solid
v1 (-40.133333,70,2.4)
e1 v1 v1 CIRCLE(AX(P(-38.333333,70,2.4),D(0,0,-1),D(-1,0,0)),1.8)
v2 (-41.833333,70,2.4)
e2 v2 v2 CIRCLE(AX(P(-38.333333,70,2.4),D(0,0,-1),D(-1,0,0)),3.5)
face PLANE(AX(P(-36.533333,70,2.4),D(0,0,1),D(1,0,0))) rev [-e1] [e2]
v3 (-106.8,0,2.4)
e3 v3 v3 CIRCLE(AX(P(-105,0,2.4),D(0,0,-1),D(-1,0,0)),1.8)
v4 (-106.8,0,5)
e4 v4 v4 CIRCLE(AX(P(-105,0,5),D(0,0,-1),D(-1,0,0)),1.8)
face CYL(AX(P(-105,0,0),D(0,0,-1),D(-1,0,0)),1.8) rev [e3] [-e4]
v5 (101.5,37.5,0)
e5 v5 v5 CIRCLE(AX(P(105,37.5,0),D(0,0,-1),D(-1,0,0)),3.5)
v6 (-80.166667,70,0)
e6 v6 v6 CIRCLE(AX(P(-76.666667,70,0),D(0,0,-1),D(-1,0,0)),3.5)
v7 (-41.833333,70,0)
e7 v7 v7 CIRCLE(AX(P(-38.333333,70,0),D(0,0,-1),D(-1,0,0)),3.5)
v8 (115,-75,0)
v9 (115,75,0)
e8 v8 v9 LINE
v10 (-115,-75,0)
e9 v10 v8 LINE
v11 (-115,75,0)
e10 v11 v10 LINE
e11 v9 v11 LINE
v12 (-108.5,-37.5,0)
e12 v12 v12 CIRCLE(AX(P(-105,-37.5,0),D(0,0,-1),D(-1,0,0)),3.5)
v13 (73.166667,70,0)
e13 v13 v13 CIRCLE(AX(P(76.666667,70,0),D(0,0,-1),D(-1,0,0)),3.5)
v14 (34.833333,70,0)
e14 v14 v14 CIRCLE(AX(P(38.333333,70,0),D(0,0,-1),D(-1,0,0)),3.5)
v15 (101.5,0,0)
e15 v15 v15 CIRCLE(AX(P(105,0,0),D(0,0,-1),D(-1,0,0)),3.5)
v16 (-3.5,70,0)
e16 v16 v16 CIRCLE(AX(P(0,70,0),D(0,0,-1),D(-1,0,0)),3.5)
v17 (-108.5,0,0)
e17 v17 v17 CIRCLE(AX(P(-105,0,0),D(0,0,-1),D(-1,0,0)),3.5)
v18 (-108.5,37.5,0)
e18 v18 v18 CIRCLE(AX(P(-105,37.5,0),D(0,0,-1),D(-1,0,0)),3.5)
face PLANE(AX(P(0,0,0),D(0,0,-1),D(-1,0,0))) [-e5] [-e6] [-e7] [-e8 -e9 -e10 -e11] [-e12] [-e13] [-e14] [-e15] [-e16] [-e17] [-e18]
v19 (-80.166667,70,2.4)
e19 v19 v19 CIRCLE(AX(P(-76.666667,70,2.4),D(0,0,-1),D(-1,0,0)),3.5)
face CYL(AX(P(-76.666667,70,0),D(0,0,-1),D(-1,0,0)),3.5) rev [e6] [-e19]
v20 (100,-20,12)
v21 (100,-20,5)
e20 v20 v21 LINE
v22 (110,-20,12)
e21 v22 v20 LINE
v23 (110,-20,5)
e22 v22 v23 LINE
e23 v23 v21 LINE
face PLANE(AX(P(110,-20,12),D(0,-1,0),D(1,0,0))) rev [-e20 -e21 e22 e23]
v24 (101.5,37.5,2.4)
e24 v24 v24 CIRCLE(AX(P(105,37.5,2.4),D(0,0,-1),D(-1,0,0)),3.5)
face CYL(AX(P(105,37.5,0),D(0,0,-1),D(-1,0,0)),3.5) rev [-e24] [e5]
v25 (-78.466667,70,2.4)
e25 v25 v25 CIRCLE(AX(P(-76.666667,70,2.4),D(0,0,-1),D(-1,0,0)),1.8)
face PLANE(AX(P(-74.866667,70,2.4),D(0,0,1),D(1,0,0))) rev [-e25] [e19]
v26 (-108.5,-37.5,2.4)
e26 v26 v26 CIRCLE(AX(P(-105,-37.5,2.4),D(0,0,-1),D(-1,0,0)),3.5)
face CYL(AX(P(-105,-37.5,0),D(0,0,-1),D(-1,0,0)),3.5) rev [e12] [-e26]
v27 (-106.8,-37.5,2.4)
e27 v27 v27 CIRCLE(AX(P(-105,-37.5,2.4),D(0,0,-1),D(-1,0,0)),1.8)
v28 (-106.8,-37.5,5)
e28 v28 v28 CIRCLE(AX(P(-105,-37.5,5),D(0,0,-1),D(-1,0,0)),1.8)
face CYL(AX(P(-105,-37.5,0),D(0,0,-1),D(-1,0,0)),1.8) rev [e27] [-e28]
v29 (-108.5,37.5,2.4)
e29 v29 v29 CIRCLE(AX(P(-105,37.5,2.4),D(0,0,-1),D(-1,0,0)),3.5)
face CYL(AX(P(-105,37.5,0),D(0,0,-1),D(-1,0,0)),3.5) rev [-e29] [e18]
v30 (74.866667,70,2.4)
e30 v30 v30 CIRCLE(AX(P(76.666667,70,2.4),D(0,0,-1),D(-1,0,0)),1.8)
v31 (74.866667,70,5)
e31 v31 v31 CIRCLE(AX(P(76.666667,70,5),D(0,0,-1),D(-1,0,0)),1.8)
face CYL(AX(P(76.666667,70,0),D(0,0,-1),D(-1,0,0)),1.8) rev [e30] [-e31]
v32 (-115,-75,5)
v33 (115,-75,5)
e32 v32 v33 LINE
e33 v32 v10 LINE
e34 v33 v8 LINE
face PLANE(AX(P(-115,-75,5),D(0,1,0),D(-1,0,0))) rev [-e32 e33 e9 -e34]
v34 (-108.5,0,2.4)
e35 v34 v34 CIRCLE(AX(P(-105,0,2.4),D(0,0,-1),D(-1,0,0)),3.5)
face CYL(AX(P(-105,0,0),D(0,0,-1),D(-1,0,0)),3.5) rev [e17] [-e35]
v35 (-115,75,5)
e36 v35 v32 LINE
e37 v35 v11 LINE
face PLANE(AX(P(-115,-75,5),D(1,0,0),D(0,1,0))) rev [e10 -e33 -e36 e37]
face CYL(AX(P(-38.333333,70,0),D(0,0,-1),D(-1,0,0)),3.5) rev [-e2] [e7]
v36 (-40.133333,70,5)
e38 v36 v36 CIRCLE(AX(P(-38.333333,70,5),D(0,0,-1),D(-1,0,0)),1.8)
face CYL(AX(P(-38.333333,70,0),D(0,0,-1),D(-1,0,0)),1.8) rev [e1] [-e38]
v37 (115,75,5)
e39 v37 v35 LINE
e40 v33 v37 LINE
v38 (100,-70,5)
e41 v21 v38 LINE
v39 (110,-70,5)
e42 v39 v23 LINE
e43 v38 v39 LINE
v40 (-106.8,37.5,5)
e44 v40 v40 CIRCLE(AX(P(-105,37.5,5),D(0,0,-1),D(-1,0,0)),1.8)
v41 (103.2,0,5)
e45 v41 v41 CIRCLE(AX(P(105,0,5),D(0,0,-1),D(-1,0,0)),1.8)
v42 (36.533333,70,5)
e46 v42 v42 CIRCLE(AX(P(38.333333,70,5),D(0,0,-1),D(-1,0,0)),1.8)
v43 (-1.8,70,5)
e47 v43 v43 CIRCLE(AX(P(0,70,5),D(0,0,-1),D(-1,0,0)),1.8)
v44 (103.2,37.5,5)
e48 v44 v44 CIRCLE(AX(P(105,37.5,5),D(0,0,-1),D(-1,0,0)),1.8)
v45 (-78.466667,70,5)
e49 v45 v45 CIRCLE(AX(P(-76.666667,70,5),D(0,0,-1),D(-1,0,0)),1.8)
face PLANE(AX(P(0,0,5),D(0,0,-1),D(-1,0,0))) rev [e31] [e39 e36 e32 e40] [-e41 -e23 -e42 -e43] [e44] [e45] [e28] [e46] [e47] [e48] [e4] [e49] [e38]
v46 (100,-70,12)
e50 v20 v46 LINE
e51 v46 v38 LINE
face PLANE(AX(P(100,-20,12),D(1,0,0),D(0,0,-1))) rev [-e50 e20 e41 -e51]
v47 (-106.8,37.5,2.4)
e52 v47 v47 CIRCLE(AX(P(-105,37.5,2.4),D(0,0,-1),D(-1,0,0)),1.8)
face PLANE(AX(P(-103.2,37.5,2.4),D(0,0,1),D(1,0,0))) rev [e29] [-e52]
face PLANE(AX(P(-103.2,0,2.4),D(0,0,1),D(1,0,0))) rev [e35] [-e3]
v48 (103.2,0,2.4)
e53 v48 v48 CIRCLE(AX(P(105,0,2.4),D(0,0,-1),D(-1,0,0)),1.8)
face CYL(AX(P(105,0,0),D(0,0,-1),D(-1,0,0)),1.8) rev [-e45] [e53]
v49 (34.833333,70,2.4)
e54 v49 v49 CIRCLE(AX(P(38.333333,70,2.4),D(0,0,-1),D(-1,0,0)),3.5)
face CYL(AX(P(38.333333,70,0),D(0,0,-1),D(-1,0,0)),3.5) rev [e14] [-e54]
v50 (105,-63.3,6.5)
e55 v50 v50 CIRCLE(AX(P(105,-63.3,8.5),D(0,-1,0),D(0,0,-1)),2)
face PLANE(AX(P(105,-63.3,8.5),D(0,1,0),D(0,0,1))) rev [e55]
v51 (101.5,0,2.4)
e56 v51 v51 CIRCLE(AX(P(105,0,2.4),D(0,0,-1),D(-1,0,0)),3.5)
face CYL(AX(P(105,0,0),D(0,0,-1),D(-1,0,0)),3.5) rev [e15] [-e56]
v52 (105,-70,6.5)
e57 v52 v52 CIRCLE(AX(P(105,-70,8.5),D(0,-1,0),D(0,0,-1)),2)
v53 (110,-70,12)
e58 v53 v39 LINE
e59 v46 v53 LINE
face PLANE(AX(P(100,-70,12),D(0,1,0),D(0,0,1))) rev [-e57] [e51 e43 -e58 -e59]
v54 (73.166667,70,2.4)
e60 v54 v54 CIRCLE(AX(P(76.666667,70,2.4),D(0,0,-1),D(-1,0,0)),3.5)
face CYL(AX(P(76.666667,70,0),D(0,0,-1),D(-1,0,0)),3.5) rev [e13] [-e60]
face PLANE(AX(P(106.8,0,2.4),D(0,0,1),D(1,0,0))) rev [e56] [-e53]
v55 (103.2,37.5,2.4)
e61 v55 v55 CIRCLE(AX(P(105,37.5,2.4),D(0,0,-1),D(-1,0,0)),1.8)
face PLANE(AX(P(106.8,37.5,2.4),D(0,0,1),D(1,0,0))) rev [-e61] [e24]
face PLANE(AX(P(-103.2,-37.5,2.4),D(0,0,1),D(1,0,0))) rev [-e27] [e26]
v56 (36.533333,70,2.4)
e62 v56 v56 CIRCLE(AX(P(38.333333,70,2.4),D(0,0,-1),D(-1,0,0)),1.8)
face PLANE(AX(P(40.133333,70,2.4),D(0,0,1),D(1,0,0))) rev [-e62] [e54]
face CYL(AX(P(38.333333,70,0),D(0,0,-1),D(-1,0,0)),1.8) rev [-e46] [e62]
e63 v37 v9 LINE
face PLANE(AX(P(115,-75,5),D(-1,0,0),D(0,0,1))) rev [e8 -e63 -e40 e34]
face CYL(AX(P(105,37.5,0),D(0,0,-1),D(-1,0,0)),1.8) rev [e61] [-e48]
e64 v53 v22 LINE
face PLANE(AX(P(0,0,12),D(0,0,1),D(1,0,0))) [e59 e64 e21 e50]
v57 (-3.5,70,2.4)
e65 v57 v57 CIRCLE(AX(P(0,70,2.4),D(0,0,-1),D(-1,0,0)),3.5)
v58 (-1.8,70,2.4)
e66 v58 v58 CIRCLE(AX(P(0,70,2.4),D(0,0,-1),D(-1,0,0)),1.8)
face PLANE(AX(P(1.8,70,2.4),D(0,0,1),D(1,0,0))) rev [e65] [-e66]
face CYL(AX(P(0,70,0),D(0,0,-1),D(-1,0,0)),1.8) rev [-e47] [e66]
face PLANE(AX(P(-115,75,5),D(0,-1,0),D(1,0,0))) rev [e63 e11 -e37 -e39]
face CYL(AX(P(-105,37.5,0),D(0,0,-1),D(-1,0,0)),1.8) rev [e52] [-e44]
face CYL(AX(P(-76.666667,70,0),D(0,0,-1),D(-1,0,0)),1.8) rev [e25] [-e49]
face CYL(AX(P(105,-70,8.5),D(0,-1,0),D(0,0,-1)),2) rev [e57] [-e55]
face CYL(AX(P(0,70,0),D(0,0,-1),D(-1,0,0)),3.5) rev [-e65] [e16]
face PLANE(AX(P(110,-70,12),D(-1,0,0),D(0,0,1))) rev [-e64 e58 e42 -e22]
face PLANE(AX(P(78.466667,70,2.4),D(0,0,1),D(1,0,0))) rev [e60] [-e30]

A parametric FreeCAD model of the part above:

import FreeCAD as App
import Part
import Sketcher

V = App.Vector
Q = App.Units.Quantity

doc = App.newDocument("Part")
params = doc.addObject("Spreadsheet::Sheet", "Params")
for row, (alias, value) in enumerate([
    ("sketch1_width", "230 mm"),
    ("sketch1_height", "150 mm"),
    ("pad1_length", "5 mm"),
    ("sketch2_diameter", "3.6 mm"),
    ("hole_diameter", "3.6 mm"),
    ("hole_depth", "6.7 mm"),
    ("hole_cbore_diameter", "7 mm"),
    ("hole_cbore_depth", "2.4 mm"),
    ("sketch3_diameter", "3.6 mm"),
    ("hole2_diameter", "3.6 mm"),
    ("hole2_depth", "6.7 mm"),
    ("hole2_cbore_diameter", "7 mm"),
    ("hole2_cbore_depth", "2.4 mm"),
    ("sketch4_width", "10 mm"),
    ("sketch4_height", "50 mm"),
    ("pad2_length", "7 mm"),
    ("sketch5_diameter", "4 mm"),
    ("hole3_diameter", "4 mm"),
    ("hole3_depth", "6.7 mm"),
], start=1):
    params.set(f"A{row}", alias)
    params.set(f"B{row}", "=" + value)
    params.setAlias(f"B{row}", alias)

body = doc.addObject("PartDesign::Body", "Body")

# Sketch on XY plane
sketch1 = doc.addObject("Sketcher::SketchObject", "Sketch")
body.addObject(sketch1)
sketch1.AttachmentSupport = (doc.XY_Plane, [""])
sketch1.MapMode = "FlatFace"
sketch1.addGeometry(Part.LineSegment(V(-115, 75, 0), V(-115, -75, 0)), False)
sketch1.addGeometry(Part.LineSegment(V(-115, -75, 0), V(115, -75, 0)), False)
sketch1.addGeometry(Part.LineSegment(V(115, -75, 0), V(115, 75, 0)), False)
sketch1.addGeometry(Part.LineSegment(V(115, 75, 0), V(-115, 75, 0)), False)
sketch1.addConstraint(Sketcher.Constraint("Coincident", 0, 2, 1, 1))
sketch1.addConstraint(Sketcher.Constraint("Coincident", 1, 2, 2, 1))
sketch1.addConstraint(Sketcher.Constraint("Coincident", 2, 2, 3, 1))
sketch1.addConstraint(Sketcher.Constraint("Coincident", 3, 2, 0, 1))
sketch1.addConstraint(Sketcher.Constraint("Vertical", 0))
sketch1.addConstraint(Sketcher.Constraint("Horizontal", 1))
sketch1.addConstraint(Sketcher.Constraint("Vertical", 2))
sketch1.addConstraint(Sketcher.Constraint("Horizontal", 3))
sketch1.addConstraint(Sketcher.Constraint("Symmetric", 0, 2, 2, 2, -1, 1))
sketch1.addConstraint(Sketcher.Constraint("DistanceX", 1, 1, 1, 2, Q("230 mm")))
sketch1.addConstraint(Sketcher.Constraint("DistanceY", 0, 2, 0, 1, Q("150 mm")))
sketch1.setExpression("Constraints[9]", "Params.sketch1_width")
sketch1.setExpression("Constraints[10]", "Params.sketch1_height")
pad1 = doc.addObject("PartDesign::Pad", "Pad")
body.addObject(pad1)
pad1.Profile = sketch1
pad1.setExpression("Length", "Params.pad1_length")

# Sketch on XY plane
sketch2 = doc.addObject("Sketcher::SketchObject", "Sketch001")
body.addObject(sketch2)
sketch2.AttachmentSupport = (doc.XY_Plane, [""])
sketch2.MapMode = "FlatFace"
sketch2.addGeometry(Part.Circle(V(-105, 37.5, 0), V(0, 0, 1), 1.8), False)
sketch2.addGeometry(Part.Circle(V(-105, 0, 0), V(0, 0, 1), 1.8), False)
sketch2.addGeometry(Part.Circle(V(-105, -37.5, 0), V(0, 0, 1), 1.8), False)
sketch2.addGeometry(Part.Circle(V(105, 0, 0), V(0, 0, 1), 1.8), False)
sketch2.addGeometry(Part.Circle(V(105, 37.5, 0), V(0, 0, 1), 1.8), False)
sketch2.addConstraint(Sketcher.Constraint("Equal", 0, 1))
sketch2.addConstraint(Sketcher.Constraint("Equal", 1, 2))
sketch2.addConstraint(Sketcher.Constraint("Equal", 2, 3))
sketch2.addConstraint(Sketcher.Constraint("Equal", 3, 4))
sketch2.addConstraint(Sketcher.Constraint("Symmetric", 1, 3, 3, 3, -1, 1))
sketch2.addConstraint(Sketcher.Constraint("Symmetric", 2, 3, 4, 3, -1, 1))
sketch2.addConstraint(Sketcher.Constraint("Symmetric", 0, 3, 4, 3, -2))
sketch2.addConstraint(Sketcher.Constraint("PointOnObject", 1, 3, -1))
sketch2.addConstraint(Sketcher.Constraint("Vertical", 0, 3, 1, 3))
sketch2.addConstraint(Sketcher.Constraint("Diameter", 0, Q("3.6 mm")))
sketch2.addConstraint(Sketcher.Constraint("DistanceX", 0, 3, -1, 1, Q("105 mm")))
sketch2.addConstraint(Sketcher.Constraint("DistanceY", 2, 3, 0, 3, Q("75 mm")))
sketch2.setExpression("Constraints[9]", "Params.sketch2_diameter")
doc.recompute()
hole = doc.addObject("PartDesign::Hole", "Hole")
body.addObject(hole)
hole.Profile = sketch2
hole.ThreadType = "None"
hole.setExpression("Diameter", "Params.hole_diameter")
hole.DepthType = "Dimension"
hole.setExpression("Depth", "Params.hole_depth")
hole.DrillPoint = "Angled"
hole.DrillPointAngle = 118
hole.HoleCutType = "Counterbore"
hole.setExpression("HoleCutDiameter", "Params.hole_cbore_diameter")
hole.setExpression("HoleCutDepth", "Params.hole_cbore_depth")
hole.Reversed = True

# Sketch on XY plane
sketch3 = doc.addObject("Sketcher::SketchObject", "Sketch002")
body.addObject(sketch3)
sketch3.AttachmentSupport = (doc.XY_Plane, [""])
sketch3.MapMode = "FlatFace"
sketch3.addGeometry(Part.Circle(V(76.7, 70, 0), V(0, 0, 1), 1.8), False)
sketch3.addGeometry(Part.Circle(V(38.3, 70, 0), V(0, 0, 1), 1.8), False)
sketch3.addGeometry(Part.Circle(V(0, 70, 0), V(0, 0, 1), 1.8), False)
sketch3.addGeometry(Part.Circle(V(-38.3, 70, 0), V(0, 0, 1), 1.8), False)
sketch3.addGeometry(Part.Circle(V(-76.7, 70, 0), V(0, 0, 1), 1.8), False)
sketch3.addConstraint(Sketcher.Constraint("Equal", 0, 1))
sketch3.addConstraint(Sketcher.Constraint("Equal", 1, 2))
sketch3.addConstraint(Sketcher.Constraint("Equal", 2, 3))
sketch3.addConstraint(Sketcher.Constraint("Equal", 3, 4))
sketch3.addConstraint(Sketcher.Constraint("Symmetric", 1, 3, 3, 3, -2))
sketch3.addConstraint(Sketcher.Constraint("Symmetric", 0, 3, 4, 3, -2))
sketch3.addConstraint(Sketcher.Constraint("PointOnObject", 2, 3, -2))
sketch3.addConstraint(Sketcher.Constraint("Horizontal", 0, 3, 1, 3))
sketch3.addConstraint(Sketcher.Constraint("Horizontal", 1, 3, 2, 3))
sketch3.addConstraint(Sketcher.Constraint("Diameter", 0, Q("3.6 mm")))
sketch3.addConstraint(Sketcher.Constraint("DistanceY", -1, 1, 0, 3, Q("70 mm")))
sketch3.addConstraint(Sketcher.Constraint("DistanceX", 3, 3, 0, 3, Q("115 mm")))
sketch3.addConstraint(Sketcher.Constraint("DistanceX", -1, 1, 0, 3, Q("76.666667 mm")))
sketch3.setExpression("Constraints[9]", "Params.sketch3_diameter")
doc.recompute()
hole2 = doc.addObject("PartDesign::Hole", "Hole001")
body.addObject(hole2)
hole2.Profile = sketch3
hole2.ThreadType = "None"
hole2.setExpression("Diameter", "Params.hole2_diameter")
hole2.DepthType = "Dimension"
hole2.setExpression("Depth", "Params.hole2_depth")
hole2.DrillPoint = "Angled"
hole2.DrillPointAngle = 118
hole2.HoleCutType = "Counterbore"
hole2.setExpression("HoleCutDiameter", "Params.hole2_cbore_diameter")
hole2.setExpression("HoleCutDepth", "Params.hole2_cbore_depth")
hole2.Reversed = True

# Sketch on XY plane
sketch4 = doc.addObject("Sketcher::SketchObject", "Sketch003")
body.addObject(sketch4)
sketch4.AttachmentSupport = (doc.XY_Plane, [""])
sketch4.MapMode = "FlatFace"
sketch4.AttachmentOffset = App.Placement(V(0, 0, 5), App.Rotation())
sketch4.addGeometry(Part.LineSegment(V(100, -20, 0), V(100, -70, 0)), False)
sketch4.addGeometry(Part.LineSegment(V(100, -70, 0), V(110, -70, 0)), False)
sketch4.addGeometry(Part.LineSegment(V(110, -70, 0), V(110, -20, 0)), False)
sketch4.addGeometry(Part.LineSegment(V(110, -20, 0), V(100, -20, 0)), False)
sketch4.addConstraint(Sketcher.Constraint("Coincident", 0, 2, 1, 1))
sketch4.addConstraint(Sketcher.Constraint("Coincident", 1, 2, 2, 1))
sketch4.addConstraint(Sketcher.Constraint("Coincident", 2, 2, 3, 1))
sketch4.addConstraint(Sketcher.Constraint("Coincident", 3, 2, 0, 1))
sketch4.addConstraint(Sketcher.Constraint("Vertical", 0))
sketch4.addConstraint(Sketcher.Constraint("Horizontal", 1))
sketch4.addConstraint(Sketcher.Constraint("Vertical", 2))
sketch4.addConstraint(Sketcher.Constraint("Horizontal", 3))
sketch4.addConstraint(Sketcher.Constraint("DistanceX", 1, 1, 1, 2, Q("10 mm")))
sketch4.addConstraint(Sketcher.Constraint("DistanceY", 0, 2, 0, 1, Q("50 mm")))
sketch4.addConstraint(Sketcher.Constraint("DistanceX", -1, 1, 0, 2, Q("100 mm")))
sketch4.addConstraint(Sketcher.Constraint("DistanceY", 0, 2, -1, 1, Q("70 mm")))
sketch4.setExpression("Constraints[8]", "Params.sketch4_width")
sketch4.setExpression("Constraints[9]", "Params.sketch4_height")
pad2 = doc.addObject("PartDesign::Pad", "Pad001")
body.addObject(pad2)
pad2.Profile = sketch4
pad2.setExpression("Length", "Params.pad2_length")

# Sketch on XZ plane
sketch5 = doc.addObject("Sketcher::SketchObject", "Sketch004")
body.addObject(sketch5)
sketch5.AttachmentSupport = (doc.XZ_Plane, [""])
sketch5.MapMode = "FlatFace"
sketch5.AttachmentOffset = App.Placement(V(0, 0, 70), App.Rotation())
sketch5.addGeometry(Part.Circle(V(105, 8.5, 0), V(0, 0, 1), 2), False)
sketch5.addConstraint(Sketcher.Constraint("Diameter", 0, Q("4 mm")))
sketch5.addConstraint(Sketcher.Constraint("DistanceX", -1, 1, 0, 3, Q("105 mm")))
sketch5.addConstraint(Sketcher.Constraint("DistanceY", -1, 1, 0, 3, Q("8.5 mm")))
sketch5.setExpression("Constraints[0]", "Params.sketch5_diameter")
doc.recompute()
hole3 = doc.addObject("PartDesign::Hole", "Hole002")
body.addObject(hole3)
hole3.Profile = sketch5
hole3.ThreadType = "None"
hole3.setExpression("Diameter", "Params.hole3_diameter")
hole3.DepthType = "Dimension"
hole3.setExpression("Depth", "Params.hole3_depth")
hole3.DrillPoint = "Flat"

doc.recompute()
